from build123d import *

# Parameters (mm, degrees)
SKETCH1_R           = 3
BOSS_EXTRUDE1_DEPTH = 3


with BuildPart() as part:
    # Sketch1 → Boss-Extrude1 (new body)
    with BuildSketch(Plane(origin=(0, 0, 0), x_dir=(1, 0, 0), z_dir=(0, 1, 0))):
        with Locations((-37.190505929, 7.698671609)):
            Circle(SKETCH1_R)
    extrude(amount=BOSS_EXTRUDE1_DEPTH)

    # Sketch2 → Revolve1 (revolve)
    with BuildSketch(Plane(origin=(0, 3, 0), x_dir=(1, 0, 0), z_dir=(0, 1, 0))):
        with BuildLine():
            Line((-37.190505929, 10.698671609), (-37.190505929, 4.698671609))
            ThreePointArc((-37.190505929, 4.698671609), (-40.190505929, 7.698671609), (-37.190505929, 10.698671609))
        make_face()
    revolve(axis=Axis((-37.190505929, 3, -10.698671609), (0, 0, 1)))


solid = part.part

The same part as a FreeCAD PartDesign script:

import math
import FreeCAD as App
import Part
import Sketcher
from FreeCAD import Vector

doc = App.newDocument("Part")
params = doc.addObject("Spreadsheet::Sheet", "Params")
for row, (alias, value) in enumerate([
    ("sketch1_diameter", "6 mm"),
    ("pad1_length", "3 mm"),
    ("sketch2_radius", "3 mm"),
    ("revolution_angle", "360 deg"),
], start=1):
    params.set(f"A{row}", alias)
    params.set(f"B{row}", "=" + value)
    params.setAlias(f"B{row}", alias)

body = doc.addObject("PartDesign::Body", "Body")

# Sketch on XZ plane
sketch1 = body.newObject("Sketcher::SketchObject", "Sketch")
sketch1.AttachmentSupport = (doc.getObject("XZ_Plane"), [""])
sketch1.MapMode = "FlatFace"
sketch1.addGeometry(Part.Circle(Vector(-37.2, -7.7, 0), Vector(0, 0, 1), 3), False)
sketch1.addConstraint([
    Sketcher.Constraint("Diameter", 0, 6.0),
    Sketcher.Constraint("DistanceY", 0, 3, -1, 1, 7.698672),
    Sketcher.Constraint("DistanceX", 0, 3, -1, 1, 37.190506),
])
sketch1.setExpression("Constraints[0]", "Params.sketch1_diameter")
pad1 = body.newObject("PartDesign::Pad", "Pad")
pad1.Profile = sketch1
pad1.setExpression("Length", "Params.pad1_length")
pad1.Reversed = True

# Sketch on XZ plane
sketch2 = body.newObject("Sketcher::SketchObject", "Sketch001")
sketch2.AttachmentSupport = (doc.getObject("XZ_Plane"), [""])
sketch2.MapMode = "FlatFace"
sketch2.AttachmentOffset = App.Placement(Vector(0, 0, -3), App.Rotation())
sketch2.addGeometry([
    Part.LineSegment(Vector(-37.2, -4.7, 0), Vector(-37.2, -10.7, 0)),
    Part.ArcOfCircle(Part.Circle(Vector(-37.2, -7.7, 0), Vector(0, 0, 1), 3), math.radians(90), math.radians(270)),
], False)
sketch2.addGeometry(Part.LineSegment(Vector(-37.2, -10.7, 0), Vector(-37.2, -4.7, 0)), True)  # axis
sketch2.addConstraint([
    Sketcher.Constraint("Coincident", 0, 1, 1, 1),
    Sketcher.Constraint("Coincident", 1, 2, 0, 2),
    Sketcher.Constraint("Vertical", 0),
    Sketcher.Constraint("Vertical", 2),
    Sketcher.Constraint("Coincident", 2, 1, 1, 2),
    Sketcher.Constraint("Vertical", 1, 3, 0, 1),
    Sketcher.Constraint("Equal", 0, 2),
    Sketcher.Constraint("Radius", 1, 3.0),
    Sketcher.Constraint("DistanceY", 1, 3, -1, 1, 7.698672),
    Sketcher.Constraint("DistanceX", 1, 3, -1, 1, 37.190506),
])
sketch2.setExpression("Constraints[7]", "Params.sketch2_radius")
revolution = body.newObject("PartDesign::Revolution", "Revolution")
revolution.Profile = sketch2
revolution.ReferenceAxis = (sketch2, ["Axis0"])
revolution.setExpression("Angle", "Params.revolution_angle")

doc.recompute()
